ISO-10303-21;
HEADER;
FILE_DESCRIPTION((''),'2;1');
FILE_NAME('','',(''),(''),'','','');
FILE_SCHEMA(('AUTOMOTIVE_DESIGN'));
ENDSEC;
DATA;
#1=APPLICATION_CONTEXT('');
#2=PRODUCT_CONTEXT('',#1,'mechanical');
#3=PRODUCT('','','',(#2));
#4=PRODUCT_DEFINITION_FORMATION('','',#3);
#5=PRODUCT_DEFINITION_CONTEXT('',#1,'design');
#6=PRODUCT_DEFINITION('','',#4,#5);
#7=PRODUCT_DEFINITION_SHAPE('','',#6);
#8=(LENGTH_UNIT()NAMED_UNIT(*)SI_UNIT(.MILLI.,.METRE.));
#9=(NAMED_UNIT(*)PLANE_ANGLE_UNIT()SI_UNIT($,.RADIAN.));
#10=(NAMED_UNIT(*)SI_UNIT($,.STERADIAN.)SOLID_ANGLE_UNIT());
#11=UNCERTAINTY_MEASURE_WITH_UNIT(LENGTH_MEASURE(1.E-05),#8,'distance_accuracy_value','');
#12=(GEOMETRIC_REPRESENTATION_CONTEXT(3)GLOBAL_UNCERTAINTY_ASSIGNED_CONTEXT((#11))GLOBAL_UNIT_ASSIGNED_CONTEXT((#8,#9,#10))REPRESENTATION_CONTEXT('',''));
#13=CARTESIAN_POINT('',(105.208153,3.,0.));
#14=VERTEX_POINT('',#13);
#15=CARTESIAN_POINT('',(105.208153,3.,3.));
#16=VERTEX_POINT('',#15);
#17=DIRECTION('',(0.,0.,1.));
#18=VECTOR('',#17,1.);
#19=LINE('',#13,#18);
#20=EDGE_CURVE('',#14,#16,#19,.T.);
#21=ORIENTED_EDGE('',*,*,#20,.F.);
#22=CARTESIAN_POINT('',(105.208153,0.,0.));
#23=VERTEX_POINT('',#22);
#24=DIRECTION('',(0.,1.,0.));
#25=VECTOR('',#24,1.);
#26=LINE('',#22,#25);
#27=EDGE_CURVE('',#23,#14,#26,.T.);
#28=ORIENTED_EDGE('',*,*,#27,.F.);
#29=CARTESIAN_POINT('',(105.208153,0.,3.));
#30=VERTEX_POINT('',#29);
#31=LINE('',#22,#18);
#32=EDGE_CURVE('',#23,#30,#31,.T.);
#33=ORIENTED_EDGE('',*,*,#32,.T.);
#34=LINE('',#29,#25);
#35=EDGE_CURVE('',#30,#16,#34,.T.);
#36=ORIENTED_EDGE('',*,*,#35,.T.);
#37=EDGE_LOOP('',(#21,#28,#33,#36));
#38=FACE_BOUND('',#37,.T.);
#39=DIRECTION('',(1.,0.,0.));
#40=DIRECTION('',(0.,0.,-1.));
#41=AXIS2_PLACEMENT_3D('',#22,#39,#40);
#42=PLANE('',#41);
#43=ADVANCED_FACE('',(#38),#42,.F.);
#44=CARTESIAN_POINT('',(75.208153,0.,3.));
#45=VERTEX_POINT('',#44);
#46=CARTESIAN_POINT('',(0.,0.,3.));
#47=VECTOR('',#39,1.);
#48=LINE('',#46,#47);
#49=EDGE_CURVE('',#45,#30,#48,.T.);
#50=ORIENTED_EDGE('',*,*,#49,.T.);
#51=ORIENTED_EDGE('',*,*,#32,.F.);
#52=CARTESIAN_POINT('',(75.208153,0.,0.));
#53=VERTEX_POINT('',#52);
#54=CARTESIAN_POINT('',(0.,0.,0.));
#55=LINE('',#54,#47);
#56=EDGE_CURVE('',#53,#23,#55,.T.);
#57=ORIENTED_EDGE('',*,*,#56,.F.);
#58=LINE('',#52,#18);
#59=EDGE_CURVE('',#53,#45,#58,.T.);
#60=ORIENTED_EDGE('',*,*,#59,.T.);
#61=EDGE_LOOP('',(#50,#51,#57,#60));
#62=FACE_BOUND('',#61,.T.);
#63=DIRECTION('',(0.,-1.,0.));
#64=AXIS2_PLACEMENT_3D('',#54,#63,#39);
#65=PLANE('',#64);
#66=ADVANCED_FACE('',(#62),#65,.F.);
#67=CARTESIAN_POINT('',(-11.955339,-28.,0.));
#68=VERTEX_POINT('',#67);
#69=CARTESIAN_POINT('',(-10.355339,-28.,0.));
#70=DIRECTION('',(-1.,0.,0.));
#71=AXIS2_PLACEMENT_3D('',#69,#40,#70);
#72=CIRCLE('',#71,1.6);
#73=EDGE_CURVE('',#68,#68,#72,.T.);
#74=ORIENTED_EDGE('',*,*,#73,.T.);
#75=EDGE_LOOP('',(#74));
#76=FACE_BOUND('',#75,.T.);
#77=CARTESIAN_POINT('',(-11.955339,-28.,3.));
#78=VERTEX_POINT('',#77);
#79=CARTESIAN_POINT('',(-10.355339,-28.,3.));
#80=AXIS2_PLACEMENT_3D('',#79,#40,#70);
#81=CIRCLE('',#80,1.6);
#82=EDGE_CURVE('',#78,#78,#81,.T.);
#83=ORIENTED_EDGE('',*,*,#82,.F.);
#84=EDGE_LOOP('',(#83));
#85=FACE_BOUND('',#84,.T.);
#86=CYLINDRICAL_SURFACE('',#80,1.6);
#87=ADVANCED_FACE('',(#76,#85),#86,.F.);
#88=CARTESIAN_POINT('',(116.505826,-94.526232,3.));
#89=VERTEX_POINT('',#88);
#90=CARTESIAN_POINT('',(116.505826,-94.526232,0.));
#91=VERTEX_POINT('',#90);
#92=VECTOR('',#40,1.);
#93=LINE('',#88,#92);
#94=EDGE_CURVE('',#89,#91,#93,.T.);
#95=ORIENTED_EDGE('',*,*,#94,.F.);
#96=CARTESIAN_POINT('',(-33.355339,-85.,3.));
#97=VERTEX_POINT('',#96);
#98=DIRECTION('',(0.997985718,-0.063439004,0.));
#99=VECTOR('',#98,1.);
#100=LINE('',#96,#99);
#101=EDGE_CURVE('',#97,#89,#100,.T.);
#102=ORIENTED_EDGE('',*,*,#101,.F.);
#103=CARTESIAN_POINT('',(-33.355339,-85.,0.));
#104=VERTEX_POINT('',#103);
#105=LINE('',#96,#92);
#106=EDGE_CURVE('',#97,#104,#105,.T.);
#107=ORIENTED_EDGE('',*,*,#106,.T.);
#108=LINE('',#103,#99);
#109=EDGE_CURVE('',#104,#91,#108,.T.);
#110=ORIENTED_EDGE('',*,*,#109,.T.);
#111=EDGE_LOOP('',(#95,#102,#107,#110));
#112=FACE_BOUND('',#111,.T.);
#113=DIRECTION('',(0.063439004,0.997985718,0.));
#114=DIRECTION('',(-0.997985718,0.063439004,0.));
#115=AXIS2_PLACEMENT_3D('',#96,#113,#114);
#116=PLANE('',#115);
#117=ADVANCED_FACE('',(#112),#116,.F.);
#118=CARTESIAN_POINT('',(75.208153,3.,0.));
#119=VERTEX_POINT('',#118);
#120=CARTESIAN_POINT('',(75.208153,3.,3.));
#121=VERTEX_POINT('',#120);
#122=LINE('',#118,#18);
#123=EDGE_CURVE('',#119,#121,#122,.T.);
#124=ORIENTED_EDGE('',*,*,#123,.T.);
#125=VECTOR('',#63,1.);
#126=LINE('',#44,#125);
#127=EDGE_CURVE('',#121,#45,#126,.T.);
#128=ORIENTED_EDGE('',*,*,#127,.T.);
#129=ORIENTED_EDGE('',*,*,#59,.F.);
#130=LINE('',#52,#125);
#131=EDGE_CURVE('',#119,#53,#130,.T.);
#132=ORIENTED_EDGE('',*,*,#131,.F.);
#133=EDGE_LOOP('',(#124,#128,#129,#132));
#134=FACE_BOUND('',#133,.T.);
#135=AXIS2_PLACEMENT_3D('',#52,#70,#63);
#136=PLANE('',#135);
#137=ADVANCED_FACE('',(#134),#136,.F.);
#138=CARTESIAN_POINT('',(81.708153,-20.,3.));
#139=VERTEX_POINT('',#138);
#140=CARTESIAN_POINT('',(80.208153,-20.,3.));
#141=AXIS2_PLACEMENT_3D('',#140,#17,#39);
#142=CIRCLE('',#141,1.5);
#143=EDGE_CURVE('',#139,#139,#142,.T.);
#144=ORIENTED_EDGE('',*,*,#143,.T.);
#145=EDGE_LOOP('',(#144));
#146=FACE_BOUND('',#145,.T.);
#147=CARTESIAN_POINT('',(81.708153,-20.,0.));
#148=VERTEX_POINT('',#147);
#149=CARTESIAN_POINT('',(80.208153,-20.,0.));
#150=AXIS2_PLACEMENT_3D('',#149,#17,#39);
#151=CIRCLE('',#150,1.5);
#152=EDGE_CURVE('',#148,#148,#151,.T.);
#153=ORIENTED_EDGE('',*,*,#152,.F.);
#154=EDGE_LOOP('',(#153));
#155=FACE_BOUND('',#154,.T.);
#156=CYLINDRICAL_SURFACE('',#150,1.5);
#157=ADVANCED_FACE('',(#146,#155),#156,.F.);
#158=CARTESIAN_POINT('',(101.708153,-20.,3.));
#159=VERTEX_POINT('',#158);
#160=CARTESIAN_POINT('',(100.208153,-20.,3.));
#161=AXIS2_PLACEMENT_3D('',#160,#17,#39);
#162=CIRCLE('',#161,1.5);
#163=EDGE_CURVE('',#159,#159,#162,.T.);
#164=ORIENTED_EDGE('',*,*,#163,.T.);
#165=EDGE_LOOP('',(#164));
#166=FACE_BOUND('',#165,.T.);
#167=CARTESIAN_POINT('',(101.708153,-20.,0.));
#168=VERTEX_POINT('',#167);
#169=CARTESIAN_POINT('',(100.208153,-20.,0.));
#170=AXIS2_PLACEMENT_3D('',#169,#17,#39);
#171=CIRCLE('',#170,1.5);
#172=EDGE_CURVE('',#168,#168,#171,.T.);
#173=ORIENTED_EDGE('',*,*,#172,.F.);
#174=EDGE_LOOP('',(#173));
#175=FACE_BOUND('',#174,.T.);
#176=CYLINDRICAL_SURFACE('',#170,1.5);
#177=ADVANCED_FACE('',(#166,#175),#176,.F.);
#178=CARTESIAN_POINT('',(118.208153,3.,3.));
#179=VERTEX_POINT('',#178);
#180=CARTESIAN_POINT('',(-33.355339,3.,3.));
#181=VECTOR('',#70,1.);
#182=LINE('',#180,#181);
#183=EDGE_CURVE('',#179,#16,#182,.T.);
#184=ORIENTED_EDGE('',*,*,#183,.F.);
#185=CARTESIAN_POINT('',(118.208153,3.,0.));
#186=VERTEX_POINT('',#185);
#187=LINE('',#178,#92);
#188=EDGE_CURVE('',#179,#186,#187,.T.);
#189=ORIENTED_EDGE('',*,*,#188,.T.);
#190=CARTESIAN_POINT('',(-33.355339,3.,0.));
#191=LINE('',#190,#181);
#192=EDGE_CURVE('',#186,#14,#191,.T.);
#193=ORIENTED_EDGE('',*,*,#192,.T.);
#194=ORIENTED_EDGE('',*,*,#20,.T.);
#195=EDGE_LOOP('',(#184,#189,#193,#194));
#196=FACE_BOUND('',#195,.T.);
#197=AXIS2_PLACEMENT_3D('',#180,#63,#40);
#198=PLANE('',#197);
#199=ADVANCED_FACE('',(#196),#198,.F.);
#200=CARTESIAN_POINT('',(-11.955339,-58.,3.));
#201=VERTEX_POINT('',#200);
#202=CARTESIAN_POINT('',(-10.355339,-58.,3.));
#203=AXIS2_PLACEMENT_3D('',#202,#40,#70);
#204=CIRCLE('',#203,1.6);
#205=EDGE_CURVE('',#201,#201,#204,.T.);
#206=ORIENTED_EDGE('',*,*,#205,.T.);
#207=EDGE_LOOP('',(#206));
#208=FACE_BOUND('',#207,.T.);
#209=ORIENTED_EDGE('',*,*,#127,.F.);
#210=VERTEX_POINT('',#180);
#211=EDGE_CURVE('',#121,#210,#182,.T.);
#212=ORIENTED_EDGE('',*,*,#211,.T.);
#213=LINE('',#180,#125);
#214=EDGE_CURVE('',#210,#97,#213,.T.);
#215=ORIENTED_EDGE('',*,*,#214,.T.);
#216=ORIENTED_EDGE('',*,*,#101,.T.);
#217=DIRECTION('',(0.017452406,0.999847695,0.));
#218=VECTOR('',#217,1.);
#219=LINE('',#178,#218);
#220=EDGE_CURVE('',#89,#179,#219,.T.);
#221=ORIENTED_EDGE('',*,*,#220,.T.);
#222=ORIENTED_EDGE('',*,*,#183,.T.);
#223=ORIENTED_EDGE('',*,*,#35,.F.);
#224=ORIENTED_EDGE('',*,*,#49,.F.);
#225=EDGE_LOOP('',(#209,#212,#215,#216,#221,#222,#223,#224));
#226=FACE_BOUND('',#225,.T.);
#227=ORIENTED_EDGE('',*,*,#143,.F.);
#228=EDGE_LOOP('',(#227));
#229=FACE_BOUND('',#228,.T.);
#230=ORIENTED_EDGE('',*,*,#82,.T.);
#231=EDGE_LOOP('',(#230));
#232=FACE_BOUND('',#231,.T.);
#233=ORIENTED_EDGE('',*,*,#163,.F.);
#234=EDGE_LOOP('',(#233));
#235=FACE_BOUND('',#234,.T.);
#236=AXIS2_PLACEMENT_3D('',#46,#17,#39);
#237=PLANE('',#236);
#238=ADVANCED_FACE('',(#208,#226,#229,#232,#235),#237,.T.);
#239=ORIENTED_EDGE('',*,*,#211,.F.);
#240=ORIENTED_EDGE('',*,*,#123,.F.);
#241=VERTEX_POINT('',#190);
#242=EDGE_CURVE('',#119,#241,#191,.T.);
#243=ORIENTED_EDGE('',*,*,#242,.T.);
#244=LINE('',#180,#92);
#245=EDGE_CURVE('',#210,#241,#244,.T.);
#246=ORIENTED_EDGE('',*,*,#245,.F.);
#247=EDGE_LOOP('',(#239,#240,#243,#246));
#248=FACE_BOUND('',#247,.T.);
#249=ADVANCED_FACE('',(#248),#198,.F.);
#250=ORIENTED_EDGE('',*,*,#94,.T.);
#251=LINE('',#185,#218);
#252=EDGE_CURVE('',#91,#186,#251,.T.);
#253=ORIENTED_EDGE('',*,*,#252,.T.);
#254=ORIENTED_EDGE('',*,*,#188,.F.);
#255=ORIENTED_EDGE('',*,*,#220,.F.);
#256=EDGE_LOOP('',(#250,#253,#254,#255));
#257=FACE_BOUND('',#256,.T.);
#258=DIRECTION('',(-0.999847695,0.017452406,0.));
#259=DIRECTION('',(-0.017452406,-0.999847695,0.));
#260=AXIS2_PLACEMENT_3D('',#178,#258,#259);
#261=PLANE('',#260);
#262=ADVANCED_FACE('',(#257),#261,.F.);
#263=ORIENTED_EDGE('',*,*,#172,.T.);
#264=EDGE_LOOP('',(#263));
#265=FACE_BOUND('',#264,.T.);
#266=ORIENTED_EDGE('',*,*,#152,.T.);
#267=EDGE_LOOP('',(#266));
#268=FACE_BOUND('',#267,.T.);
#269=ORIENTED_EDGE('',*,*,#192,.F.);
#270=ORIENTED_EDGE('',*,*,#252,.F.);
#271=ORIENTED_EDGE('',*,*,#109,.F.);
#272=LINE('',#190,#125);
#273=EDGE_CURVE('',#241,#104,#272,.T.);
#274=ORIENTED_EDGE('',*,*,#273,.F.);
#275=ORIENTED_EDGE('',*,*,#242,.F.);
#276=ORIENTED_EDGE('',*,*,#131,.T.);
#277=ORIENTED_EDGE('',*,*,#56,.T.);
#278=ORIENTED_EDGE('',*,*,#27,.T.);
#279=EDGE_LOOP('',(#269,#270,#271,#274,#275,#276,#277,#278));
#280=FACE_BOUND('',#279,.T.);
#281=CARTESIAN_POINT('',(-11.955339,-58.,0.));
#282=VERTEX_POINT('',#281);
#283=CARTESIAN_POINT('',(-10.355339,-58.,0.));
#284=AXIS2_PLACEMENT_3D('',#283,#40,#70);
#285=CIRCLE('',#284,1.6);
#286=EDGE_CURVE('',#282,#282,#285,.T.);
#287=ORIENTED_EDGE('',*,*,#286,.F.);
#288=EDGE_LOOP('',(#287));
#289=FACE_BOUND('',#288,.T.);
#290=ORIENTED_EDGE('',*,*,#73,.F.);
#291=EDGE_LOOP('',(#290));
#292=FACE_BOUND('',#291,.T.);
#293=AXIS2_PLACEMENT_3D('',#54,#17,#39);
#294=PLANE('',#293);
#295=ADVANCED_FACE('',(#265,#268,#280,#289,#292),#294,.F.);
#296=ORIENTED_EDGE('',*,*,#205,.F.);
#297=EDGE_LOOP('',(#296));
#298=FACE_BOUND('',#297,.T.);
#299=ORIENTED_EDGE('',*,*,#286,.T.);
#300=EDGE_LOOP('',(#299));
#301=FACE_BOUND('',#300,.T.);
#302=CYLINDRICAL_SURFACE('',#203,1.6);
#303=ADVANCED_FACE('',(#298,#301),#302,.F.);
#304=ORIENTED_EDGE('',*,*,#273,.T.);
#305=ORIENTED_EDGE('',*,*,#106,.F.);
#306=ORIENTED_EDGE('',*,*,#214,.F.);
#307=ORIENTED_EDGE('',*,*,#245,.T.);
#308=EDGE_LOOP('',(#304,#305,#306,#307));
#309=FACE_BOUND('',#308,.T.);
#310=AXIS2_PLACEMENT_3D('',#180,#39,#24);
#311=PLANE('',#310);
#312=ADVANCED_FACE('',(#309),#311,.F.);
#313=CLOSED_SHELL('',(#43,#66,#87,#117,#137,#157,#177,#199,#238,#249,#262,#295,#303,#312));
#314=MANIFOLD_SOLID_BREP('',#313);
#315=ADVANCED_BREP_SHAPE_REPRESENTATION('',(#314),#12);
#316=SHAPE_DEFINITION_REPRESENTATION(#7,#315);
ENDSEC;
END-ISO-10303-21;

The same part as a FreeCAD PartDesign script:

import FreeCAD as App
import Part
import Sketcher
Q = App.Units.Quantity

doc = App.newDocument("Part")
body = doc.addObject("PartDesign::Body", "Body")

sketch1 = doc.addObject("Sketcher::SketchObject", "Sketch")
body.addObject(sketch1)
sketch1.AttachmentSupport = (doc.XY_Plane, [""])
sketch1.MapMode = "FlatFace"
sketch1.addGeometry([
    Part.LineSegment(App.Vector(118.208153, 3, 0), App.Vector(-33.355339, 3, 0)),
    Part.LineSegment(App.Vector(-33.355339, 3, 0), App.Vector(-33.355339, -85, 0)),
    Part.LineSegment(App.Vector(-33.355339, -85, 0), App.Vector(116.505826, -94.526232, 0)),
    Part.LineSegment(App.Vector(116.505826, -94.526232, 0), App.Vector(118.208153, 3, 0)),
], False)
sketch1.addConstraint([
    Sketcher.Constraint("Coincident", 0, 2, 1, 1),
    Sketcher.Constraint("Coincident", 1, 2, 2, 1),
    Sketcher.Constraint("Coincident", 2, 2, 3, 1),
    Sketcher.Constraint("Coincident", 3, 2, 0, 1),
    Sketcher.Constraint("Horizontal", 0),
    Sketcher.Constraint("Vertical", 1),
    Sketcher.Constraint("DistanceY", 1, 2, 1, 1, 88.0),
    Sketcher.Constraint("Angle", 3, Q("89 deg")),
    Sketcher.Constraint("DistanceY", -1, 1, 0, 2, 3.0),
    Sketcher.Constraint("DistanceX", 0, 2, 0, 1, 151.563492),
    Sketcher.Constraint("DistanceX", 0, 2, -1, 1, 33.355339),
    Sketcher.Constraint("DistanceY", 2, 2, -1, 1, 94.526232),
])
pad1 = doc.addObject("PartDesign::Pad", "Pad")
body.addObject(pad1)
pad1.Profile = sketch1
pad1.Length = 3

sketch2 = doc.addObject("Sketcher::SketchObject", "Sketch001")
body.addObject(sketch2)
sketch2.AttachmentSupport = (doc.XY_Plane, [""])
sketch2.MapMode = "FlatFace"
sketch2.AttachmentOffset = App.Placement(App.Vector(0, 0, 3), App.Rotation())
sketch2.addGeometry([
    Part.LineSegment(App.Vector(75.208153, 3, 0), App.Vector(75.208153, 0, 0)),
    Part.LineSegment(App.Vector(75.208153, 0, 0), App.Vector(105.208153, 0, 0)),
    Part.LineSegment(App.Vector(105.208153, 0, 0), App.Vector(105.208153, 3, 0)),
    Part.LineSegment(App.Vector(105.208153, 3, 0), App.Vector(75.208153, 3, 0)),
    Part.Circle(App.Vector(80.208153, -20, 0), App.Vector(0, 0, 1), 1.5),
    Part.Circle(App.Vector(100.208153, -20, 0), App.Vector(0, 0, 1), 1.5),
], False)
sketch2.addConstraint([
    Sketcher.Constraint("Coincident", 0, 2, 1, 1),
    Sketcher.Constraint("Coincident", 1, 2, 2, 1),
    Sketcher.Constraint("Coincident", 2, 2, 3, 1),
    Sketcher.Constraint("Coincident", 3, 2, 0, 1),
    Sketcher.Constraint("Vertical", 0),
    Sketcher.Constraint("Horizontal", 1),
    Sketcher.Constraint("Vertical", 2),
    Sketcher.Constraint("Horizontal", 3),
    Sketcher.Constraint("Equal", 4, 5),
    Sketcher.Constraint("PointOnObject", 0, 2, -1),
    Sketcher.Constraint("Horizontal", 4, 3, 5, 3),
    Sketcher.Constraint("Diameter", 4, 3.0),
    Sketcher.Constraint("DistanceX", 1, 1, 1, 2, 30.0),
    Sketcher.Constraint("DistanceY", 0, 2, 0, 1, 3.0),
    Sketcher.Constraint("DistanceY", 4, 3, -1, 1, 20.0),
    Sketcher.Constraint("DistanceX", 4, 3, 5, 3, 20.0),
    Sketcher.Constraint("DistanceX", 0, 2, 4, 3, 5.0),
    Sketcher.Constraint("DistanceX", -1, 1, 4, 3, 80.208153),
])
pocket1 = doc.addObject("PartDesign::Pocket", "Pocket")
body.addObject(pocket1)
pocket1.Profile = sketch2
pocket1.Length = 3

sketch3 = doc.addObject("Sketcher::SketchObject", "Sketch002")
body.addObject(sketch3)
sketch3.AttachmentSupport = (doc.XY_Plane, [""])
sketch3.MapMode = "FlatFace"
sketch3.addGeometry([
    Part.Circle(App.Vector(-10.355339, -28, 0), App.Vector(0, 0, 1), 1.6),
    Part.Circle(App.Vector(-10.355339, -58, 0), App.Vector(0, 0, 1), 1.6),
], False)
sketch3.addConstraint([
    Sketcher.Constraint("Equal", 0, 1),
    Sketcher.Constraint("Vertical", 0, 3, 1, 3),
    Sketcher.Constraint("Diameter", 0, 3.2),
    Sketcher.Constraint("DistanceY", 0, 3, -1, 1, 28.0),
    Sketcher.Constraint("DistanceY", 1, 3, -1, 1, 58.0),
    Sketcher.Constraint("DistanceX", 0, 3, -1, 1, 10.355339),
])
pocket2 = doc.addObject("PartDesign::Pocket", "Pocket001")
body.addObject(pocket2)
pocket2.Profile = sketch3
pocket2.Length = 3
pocket2.Reversed = True

doc.recompute()
